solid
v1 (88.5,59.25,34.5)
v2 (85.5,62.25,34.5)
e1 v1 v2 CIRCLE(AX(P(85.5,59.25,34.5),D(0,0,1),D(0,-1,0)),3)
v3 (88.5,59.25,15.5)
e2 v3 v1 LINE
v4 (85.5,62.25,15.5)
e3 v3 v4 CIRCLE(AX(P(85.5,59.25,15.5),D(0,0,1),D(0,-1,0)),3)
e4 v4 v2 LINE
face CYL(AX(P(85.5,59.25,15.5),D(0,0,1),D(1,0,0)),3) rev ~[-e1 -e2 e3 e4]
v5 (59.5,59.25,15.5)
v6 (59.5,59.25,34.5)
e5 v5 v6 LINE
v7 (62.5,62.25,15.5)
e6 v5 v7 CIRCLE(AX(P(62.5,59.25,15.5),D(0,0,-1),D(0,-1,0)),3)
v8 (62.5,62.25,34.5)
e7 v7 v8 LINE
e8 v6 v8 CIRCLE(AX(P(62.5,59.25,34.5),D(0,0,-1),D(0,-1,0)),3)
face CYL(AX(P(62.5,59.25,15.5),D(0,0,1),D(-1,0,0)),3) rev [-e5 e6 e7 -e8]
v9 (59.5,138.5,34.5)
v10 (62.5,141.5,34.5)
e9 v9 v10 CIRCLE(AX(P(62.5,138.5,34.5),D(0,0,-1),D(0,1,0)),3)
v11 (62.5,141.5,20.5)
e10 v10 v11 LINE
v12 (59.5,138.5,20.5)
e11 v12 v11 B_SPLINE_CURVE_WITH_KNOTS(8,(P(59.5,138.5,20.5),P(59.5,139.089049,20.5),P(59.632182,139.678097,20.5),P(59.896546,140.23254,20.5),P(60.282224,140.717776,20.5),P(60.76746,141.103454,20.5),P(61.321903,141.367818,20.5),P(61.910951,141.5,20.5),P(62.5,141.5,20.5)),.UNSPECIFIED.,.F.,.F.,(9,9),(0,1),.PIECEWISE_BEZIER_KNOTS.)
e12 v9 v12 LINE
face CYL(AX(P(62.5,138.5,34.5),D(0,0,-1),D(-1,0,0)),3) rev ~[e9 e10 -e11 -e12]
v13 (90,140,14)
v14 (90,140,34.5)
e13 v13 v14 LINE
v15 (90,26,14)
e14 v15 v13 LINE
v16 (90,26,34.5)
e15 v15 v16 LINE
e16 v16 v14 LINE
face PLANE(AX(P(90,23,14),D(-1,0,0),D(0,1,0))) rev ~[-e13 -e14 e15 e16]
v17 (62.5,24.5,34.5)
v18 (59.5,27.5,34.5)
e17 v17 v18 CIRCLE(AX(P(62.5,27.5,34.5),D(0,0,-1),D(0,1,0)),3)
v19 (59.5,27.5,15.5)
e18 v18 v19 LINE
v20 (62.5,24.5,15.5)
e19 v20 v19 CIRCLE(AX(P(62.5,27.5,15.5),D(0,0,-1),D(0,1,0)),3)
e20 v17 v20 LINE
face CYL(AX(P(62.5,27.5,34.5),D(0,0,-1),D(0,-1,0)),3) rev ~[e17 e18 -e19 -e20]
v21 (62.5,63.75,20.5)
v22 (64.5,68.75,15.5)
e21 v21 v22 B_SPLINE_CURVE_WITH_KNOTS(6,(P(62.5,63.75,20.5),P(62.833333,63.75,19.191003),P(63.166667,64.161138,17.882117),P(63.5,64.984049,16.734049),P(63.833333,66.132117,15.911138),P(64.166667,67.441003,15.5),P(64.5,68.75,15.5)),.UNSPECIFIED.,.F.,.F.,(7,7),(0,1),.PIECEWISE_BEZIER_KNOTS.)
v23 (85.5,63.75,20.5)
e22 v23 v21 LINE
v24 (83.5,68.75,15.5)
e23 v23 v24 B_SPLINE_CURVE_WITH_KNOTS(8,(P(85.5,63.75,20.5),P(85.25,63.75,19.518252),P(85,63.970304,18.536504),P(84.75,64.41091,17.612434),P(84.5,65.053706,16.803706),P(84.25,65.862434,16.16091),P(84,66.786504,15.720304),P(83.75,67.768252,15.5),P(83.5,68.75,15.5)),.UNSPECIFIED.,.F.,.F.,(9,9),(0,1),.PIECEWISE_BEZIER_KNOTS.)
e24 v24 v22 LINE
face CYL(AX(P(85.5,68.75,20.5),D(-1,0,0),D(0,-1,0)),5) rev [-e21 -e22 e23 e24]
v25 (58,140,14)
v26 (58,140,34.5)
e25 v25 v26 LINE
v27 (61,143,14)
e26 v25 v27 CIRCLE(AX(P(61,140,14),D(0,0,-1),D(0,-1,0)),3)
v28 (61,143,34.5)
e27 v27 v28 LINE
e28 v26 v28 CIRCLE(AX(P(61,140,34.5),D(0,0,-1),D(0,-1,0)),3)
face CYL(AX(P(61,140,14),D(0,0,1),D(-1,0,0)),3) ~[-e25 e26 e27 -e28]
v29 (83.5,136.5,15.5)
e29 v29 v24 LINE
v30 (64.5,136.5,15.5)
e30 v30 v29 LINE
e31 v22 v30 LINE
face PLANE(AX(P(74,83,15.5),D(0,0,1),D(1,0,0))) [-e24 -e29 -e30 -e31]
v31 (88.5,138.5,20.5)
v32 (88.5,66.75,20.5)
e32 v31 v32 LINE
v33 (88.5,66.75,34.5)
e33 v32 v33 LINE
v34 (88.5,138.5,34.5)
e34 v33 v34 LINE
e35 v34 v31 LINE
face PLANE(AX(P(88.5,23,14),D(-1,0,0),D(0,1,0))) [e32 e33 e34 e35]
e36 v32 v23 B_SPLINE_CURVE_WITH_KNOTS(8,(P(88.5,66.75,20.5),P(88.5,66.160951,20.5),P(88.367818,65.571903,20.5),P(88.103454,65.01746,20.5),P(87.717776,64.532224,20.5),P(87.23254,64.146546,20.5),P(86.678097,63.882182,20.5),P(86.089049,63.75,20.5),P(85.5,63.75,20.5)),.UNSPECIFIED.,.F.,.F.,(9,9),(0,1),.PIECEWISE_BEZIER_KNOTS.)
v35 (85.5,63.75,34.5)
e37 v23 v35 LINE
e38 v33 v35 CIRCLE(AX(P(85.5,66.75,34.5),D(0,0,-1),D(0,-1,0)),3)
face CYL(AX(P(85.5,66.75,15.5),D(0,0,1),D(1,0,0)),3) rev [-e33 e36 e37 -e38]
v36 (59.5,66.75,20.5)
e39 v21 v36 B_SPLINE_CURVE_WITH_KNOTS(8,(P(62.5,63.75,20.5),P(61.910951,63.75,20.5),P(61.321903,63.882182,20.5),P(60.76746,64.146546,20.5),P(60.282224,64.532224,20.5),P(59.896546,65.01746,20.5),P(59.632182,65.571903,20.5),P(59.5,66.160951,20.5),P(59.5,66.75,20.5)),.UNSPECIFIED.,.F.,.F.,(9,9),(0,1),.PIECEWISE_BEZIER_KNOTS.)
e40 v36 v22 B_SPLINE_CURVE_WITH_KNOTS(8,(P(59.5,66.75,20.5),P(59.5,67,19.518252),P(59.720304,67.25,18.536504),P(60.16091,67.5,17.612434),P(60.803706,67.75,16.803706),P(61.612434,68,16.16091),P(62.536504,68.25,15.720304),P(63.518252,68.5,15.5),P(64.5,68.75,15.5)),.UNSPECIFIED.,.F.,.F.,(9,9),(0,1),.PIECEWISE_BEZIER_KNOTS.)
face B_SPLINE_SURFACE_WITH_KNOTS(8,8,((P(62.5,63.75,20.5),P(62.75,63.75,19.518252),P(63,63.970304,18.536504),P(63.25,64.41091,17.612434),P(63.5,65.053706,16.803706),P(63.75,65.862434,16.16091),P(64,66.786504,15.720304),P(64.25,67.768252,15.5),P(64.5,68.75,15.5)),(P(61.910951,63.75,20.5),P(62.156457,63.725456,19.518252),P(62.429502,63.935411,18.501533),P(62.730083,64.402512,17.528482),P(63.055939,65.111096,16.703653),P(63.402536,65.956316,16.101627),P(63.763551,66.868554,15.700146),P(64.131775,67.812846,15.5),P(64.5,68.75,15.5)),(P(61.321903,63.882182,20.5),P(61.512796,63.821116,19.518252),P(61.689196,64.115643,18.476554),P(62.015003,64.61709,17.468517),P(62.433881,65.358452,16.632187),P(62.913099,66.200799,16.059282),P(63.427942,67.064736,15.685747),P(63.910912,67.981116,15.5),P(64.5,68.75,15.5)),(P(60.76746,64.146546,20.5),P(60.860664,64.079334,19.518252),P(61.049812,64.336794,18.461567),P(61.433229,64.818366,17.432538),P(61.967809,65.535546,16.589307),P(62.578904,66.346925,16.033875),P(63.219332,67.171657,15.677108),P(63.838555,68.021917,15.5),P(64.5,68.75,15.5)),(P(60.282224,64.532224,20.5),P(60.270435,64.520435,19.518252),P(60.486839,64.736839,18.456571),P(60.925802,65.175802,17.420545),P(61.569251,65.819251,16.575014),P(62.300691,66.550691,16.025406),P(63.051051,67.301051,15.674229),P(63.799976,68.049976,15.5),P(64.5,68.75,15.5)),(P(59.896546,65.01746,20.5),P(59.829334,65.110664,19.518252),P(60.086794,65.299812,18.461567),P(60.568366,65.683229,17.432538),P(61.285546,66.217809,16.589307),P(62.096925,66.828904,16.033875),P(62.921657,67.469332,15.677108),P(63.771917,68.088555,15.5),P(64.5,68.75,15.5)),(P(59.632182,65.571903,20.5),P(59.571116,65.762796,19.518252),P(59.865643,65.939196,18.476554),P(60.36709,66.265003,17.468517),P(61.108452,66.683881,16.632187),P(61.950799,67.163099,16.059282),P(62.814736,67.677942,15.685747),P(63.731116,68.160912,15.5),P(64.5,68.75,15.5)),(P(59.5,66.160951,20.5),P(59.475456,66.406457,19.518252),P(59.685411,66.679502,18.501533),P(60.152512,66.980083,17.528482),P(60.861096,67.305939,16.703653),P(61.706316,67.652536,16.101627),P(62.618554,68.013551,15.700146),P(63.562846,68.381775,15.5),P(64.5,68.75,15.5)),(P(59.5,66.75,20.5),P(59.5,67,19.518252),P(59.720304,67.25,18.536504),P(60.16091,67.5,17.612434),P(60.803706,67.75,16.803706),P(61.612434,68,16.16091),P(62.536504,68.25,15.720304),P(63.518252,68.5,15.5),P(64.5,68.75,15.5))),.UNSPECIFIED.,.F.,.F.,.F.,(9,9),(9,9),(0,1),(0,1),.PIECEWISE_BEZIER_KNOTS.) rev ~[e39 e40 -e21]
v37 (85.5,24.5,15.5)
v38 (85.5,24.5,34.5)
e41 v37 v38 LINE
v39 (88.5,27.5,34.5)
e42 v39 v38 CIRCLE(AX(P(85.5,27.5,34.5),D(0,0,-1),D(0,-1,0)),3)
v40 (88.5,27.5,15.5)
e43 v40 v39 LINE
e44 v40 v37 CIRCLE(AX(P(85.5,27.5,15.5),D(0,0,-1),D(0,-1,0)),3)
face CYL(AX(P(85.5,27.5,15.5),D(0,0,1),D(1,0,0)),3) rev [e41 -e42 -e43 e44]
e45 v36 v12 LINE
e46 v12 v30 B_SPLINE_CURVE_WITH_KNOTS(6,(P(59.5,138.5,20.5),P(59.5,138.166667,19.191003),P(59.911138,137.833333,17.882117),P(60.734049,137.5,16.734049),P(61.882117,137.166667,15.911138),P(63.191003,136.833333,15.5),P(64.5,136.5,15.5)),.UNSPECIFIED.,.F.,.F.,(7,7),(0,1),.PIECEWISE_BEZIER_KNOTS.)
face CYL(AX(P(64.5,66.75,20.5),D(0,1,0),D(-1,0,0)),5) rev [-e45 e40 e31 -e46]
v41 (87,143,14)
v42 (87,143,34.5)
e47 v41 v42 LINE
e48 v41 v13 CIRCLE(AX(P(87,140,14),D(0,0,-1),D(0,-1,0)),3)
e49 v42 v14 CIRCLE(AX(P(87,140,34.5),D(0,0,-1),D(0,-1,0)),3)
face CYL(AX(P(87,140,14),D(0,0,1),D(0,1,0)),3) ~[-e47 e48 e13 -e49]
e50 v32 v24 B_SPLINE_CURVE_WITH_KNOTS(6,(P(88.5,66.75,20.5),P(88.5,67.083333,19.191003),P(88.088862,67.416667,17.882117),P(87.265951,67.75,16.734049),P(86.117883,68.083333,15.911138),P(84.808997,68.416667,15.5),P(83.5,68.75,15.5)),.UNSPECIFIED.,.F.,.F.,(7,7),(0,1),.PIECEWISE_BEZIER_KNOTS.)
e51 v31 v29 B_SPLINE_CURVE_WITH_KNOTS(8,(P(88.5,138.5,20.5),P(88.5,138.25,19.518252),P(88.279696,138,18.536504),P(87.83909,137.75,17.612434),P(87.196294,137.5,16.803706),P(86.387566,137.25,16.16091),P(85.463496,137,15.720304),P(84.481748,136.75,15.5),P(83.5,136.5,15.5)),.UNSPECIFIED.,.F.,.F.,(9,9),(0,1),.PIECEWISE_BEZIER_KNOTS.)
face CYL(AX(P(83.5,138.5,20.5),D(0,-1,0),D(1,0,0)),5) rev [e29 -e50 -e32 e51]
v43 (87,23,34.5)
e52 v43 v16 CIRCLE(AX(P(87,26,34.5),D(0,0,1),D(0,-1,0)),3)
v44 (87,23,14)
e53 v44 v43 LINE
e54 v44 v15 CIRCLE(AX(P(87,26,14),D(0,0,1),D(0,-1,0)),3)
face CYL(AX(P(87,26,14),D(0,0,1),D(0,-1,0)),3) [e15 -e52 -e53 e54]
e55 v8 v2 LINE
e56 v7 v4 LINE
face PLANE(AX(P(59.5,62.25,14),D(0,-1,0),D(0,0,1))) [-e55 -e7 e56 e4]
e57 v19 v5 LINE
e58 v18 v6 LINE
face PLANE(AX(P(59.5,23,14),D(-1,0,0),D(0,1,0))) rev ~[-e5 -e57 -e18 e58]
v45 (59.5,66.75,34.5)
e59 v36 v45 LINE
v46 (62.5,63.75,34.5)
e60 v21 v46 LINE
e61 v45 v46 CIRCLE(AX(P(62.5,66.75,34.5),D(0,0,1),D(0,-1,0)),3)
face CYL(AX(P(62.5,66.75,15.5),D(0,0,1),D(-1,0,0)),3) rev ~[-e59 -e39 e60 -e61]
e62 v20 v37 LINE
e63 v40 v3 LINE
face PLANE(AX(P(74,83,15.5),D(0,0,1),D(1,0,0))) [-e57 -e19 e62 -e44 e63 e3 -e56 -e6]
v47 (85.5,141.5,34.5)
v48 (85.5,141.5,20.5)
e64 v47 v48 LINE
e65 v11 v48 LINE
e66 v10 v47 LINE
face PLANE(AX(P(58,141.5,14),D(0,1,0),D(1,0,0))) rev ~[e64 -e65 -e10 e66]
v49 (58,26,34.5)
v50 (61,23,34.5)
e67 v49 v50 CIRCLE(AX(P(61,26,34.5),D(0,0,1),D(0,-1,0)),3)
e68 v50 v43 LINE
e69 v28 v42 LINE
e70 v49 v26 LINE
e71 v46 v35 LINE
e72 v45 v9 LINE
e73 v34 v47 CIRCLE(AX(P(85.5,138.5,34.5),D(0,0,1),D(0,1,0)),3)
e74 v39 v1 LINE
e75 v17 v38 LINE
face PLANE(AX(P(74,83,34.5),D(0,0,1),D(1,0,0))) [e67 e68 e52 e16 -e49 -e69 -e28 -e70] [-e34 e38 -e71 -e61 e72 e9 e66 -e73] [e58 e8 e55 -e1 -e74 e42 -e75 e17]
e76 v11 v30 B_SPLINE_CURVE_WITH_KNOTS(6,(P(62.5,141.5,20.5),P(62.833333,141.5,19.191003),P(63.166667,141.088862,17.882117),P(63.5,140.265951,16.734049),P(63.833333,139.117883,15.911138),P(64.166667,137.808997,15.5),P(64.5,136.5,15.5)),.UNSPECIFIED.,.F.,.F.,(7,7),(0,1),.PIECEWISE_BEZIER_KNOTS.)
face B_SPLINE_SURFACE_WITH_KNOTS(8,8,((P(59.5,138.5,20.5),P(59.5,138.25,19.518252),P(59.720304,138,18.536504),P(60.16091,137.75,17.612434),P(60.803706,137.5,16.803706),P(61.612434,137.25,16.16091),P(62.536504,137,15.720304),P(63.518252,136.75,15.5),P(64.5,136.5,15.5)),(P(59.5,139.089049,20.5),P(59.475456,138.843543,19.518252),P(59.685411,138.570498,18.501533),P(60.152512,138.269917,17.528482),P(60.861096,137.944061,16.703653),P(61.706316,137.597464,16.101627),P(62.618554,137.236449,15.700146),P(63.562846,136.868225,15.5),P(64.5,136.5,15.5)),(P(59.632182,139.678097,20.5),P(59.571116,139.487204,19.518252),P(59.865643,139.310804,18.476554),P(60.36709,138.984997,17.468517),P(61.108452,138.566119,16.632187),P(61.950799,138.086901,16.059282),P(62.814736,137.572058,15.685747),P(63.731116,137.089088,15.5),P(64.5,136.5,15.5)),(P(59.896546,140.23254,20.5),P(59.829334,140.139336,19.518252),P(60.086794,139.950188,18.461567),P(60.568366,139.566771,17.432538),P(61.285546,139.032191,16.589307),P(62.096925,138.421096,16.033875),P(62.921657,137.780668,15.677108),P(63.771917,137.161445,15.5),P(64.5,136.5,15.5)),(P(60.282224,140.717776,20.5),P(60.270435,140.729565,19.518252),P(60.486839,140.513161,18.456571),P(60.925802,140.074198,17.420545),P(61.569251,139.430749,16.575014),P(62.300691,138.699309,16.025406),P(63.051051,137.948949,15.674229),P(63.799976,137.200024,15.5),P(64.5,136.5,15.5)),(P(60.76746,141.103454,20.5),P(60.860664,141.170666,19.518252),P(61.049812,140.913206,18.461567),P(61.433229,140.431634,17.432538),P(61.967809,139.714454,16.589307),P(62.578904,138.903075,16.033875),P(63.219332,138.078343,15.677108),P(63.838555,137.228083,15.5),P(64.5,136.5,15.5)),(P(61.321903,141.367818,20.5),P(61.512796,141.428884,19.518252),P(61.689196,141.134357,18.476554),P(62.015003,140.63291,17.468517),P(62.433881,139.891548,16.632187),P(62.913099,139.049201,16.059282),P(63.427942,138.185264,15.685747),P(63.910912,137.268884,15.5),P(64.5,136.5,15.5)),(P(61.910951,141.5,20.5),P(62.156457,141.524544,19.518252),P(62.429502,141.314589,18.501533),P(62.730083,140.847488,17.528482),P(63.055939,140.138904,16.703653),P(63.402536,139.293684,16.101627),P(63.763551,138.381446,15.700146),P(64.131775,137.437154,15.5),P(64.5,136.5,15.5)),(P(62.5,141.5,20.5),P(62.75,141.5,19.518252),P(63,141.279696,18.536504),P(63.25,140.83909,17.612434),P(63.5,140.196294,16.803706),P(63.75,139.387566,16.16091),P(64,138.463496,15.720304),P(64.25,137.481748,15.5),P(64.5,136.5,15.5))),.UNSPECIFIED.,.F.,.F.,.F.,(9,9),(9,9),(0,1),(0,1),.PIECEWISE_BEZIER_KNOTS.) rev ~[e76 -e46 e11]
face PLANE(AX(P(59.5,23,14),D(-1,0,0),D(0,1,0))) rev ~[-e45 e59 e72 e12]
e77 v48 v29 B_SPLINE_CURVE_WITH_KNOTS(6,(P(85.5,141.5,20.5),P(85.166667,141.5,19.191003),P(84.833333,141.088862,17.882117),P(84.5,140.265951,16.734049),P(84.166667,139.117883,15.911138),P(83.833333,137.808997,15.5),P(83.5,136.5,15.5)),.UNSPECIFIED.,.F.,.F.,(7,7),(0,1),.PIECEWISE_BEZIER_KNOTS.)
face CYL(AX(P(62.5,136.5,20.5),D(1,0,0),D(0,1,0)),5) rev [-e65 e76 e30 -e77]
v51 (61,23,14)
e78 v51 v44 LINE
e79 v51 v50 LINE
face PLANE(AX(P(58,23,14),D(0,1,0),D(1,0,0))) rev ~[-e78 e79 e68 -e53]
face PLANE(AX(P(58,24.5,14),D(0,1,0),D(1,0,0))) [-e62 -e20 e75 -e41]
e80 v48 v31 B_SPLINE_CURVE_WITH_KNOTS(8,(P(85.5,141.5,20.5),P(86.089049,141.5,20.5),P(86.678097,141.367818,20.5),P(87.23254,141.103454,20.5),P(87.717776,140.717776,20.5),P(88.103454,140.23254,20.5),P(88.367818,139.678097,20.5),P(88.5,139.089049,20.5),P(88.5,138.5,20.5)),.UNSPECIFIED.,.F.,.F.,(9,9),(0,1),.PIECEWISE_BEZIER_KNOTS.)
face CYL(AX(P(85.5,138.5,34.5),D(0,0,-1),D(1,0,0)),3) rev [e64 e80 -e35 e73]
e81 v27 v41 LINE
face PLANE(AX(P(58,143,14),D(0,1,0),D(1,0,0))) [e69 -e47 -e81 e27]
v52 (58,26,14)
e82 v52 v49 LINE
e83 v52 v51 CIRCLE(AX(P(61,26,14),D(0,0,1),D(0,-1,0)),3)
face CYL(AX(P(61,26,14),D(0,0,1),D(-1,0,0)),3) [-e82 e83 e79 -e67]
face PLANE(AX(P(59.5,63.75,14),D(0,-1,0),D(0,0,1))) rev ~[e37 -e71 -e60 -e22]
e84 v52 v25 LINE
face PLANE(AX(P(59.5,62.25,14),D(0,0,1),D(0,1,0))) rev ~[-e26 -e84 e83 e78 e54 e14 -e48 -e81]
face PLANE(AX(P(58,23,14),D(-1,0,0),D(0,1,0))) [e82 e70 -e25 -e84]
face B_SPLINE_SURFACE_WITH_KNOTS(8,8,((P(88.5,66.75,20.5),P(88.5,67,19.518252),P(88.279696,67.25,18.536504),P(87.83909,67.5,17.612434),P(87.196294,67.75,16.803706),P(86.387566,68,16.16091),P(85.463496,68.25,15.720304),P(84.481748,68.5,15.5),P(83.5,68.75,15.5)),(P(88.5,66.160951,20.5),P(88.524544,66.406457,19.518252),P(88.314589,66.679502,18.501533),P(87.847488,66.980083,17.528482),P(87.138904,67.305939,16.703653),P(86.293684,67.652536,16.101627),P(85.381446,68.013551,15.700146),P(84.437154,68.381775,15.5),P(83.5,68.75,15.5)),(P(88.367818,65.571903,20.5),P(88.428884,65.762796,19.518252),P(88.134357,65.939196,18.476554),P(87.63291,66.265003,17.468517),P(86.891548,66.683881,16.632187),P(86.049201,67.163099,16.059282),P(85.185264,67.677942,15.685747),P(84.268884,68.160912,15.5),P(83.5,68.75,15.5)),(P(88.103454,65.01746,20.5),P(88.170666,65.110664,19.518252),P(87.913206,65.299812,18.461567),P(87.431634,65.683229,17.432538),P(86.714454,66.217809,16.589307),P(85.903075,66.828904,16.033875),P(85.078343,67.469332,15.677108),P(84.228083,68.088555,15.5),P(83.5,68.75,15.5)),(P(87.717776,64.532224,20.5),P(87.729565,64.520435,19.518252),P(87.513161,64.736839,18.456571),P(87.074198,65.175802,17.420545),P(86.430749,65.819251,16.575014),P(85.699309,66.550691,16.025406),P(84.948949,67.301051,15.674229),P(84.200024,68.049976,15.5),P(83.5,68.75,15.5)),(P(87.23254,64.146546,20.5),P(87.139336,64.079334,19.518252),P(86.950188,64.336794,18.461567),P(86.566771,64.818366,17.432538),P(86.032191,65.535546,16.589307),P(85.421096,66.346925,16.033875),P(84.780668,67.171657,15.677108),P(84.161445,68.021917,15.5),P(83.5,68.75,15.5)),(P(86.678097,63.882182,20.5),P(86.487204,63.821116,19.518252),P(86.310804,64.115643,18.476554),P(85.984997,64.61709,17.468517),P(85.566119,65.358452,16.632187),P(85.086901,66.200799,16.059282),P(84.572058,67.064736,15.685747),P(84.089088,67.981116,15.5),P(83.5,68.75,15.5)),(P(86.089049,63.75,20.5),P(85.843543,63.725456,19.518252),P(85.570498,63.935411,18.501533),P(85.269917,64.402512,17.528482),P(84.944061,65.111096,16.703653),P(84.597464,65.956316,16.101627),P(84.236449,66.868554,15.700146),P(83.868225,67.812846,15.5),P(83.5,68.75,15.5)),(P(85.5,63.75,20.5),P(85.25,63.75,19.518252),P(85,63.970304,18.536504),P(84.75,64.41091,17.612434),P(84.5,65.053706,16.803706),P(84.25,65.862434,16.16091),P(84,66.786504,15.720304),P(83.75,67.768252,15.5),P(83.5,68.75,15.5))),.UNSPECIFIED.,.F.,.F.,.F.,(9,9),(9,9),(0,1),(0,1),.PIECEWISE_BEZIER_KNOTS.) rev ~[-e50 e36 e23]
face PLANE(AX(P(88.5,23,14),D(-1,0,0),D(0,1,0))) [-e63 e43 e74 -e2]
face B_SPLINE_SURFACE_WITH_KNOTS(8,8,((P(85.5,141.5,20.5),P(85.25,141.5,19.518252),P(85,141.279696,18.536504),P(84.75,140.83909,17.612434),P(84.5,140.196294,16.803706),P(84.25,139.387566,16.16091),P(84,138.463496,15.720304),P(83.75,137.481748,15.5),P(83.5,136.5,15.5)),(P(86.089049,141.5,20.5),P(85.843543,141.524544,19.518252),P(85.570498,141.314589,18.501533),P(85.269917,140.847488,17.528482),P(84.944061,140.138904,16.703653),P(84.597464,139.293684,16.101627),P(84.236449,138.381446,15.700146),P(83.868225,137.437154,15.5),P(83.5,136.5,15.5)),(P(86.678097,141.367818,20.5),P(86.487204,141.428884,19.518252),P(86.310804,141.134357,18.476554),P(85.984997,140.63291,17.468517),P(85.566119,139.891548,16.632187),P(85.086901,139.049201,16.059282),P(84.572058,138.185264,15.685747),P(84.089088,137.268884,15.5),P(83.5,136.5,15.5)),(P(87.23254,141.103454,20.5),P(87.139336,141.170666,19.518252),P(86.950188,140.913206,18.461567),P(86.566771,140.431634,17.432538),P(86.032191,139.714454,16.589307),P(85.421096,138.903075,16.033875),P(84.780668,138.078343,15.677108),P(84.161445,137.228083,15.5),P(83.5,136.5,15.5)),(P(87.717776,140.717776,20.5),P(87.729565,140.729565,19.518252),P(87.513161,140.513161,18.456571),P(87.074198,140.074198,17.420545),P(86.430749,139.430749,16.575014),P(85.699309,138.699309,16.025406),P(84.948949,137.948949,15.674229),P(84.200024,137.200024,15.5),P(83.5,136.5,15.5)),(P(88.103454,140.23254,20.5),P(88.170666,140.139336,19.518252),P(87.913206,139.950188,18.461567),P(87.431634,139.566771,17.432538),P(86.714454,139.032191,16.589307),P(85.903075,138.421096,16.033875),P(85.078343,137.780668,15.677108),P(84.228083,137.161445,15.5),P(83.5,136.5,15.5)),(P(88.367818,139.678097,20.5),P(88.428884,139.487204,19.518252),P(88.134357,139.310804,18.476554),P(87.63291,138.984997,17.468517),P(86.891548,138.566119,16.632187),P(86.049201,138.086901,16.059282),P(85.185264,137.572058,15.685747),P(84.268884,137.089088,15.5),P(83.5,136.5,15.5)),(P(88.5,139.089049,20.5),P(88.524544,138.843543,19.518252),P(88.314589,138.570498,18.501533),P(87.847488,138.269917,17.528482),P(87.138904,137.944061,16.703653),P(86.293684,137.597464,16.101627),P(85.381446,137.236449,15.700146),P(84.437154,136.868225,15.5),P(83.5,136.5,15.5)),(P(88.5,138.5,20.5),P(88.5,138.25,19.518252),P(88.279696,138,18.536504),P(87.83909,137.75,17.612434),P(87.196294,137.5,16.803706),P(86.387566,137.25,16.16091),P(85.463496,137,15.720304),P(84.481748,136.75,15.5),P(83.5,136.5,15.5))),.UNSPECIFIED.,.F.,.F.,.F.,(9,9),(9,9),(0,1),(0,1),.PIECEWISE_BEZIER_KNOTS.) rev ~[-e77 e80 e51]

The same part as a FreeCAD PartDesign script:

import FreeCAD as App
import Part
import Sketcher
from FreeCAD import Vector
Q = App.Units.Quantity


def edges_at(feature, points):
    """Names of the edges that pass closest to the given points."""
    edges = feature.Shape.Edges
    near = lambda p: min(range(len(edges)), key=lambda i: edges[i].distToShape(Part.Vertex(*p))[0])
    return sorted({f"Edge{near(p) + 1}" for p in points})


def faces_at(feature, points):
    """Names of the faces that lie closest to the given points."""
    faces = feature.Shape.Faces
    near = lambda p: min(range(len(faces)), key=lambda i: faces[i].distToShape(Part.Vertex(*p))[0])
    return sorted({f"Face{near(p) + 1}" for p in points})


def add_polygon(sketch, points):
    """Adds a closed chain of lines whose ends are joined by coincident constraints."""
    first, n = sketch.GeometryCount, len(points)
    for a, b in zip(points, points[1:] + points[:1]):
        sketch.addGeometry(Part.LineSegment(App.Vector(*a, 0), App.Vector(*b, 0)), False)
    for i in range(n):
        sketch.addConstraint(Sketcher.Constraint("Coincident", first + i, 2, first + (i + 1) % n, 1))

doc = App.newDocument("Part")
body = doc.addObject("PartDesign::Body", "Body")

# Sketch on XY plane
sketch1 = doc.addObject("Sketcher::SketchObject", "Sketch")
body.addObject(sketch1)
sketch1.AttachmentSupport = (doc.XY_Plane, [""])
sketch1.MapMode = "FlatFace"
add_polygon(sketch1, [(-16, 60), (-16, -60), (16, -60), (16, 60)])  # lines 0-3
sketch1.addConstraint([
    Sketcher.Constraint("Vertical", 0),
    Sketcher.Constraint("Horizontal", 1),
    Sketcher.Constraint("Vertical", 2),
    Sketcher.Constraint("Horizontal", 3),
    Sketcher.Constraint("Symmetric", 0, 2, 2, 2, -1, 1),
    Sketcher.Constraint("DistanceX", 1, 1, 1, 2, Q("32 mm")),
    Sketcher.Constraint("DistanceY", 0, 2, 0, 1, Q("120 mm")),
])
pad1 = doc.addObject("PartDesign::Pad", "Pad")
body.addObject(pad1)
pad1.Profile = sketch1
pad1.Length = 20.5
doc.recompute()

thickness = doc.addObject("PartDesign::Thickness", "Thickness")
body.addObject(thickness)
thickness.Base = (pad1, faces_at(pad1, [(0, 0, 20.5)]))
thickness.Value = 1.5
thickness.Reversed = True
thickness.Join = "Arc"

# Sketch on YZ plane
sketch2 = doc.addObject("Sketcher::SketchObject", "Sketch001")
body.addObject(sketch2)
sketch2.AttachmentSupport = (doc.YZ_Plane, [""])
sketch2.MapMode = "FlatFace"
sketch2.AttachmentOffset = App.Placement(Vector(0, 0, -14.5), App.Rotation())
add_polygon(sketch2, [(-20.75, 20.5), (-20.75, 0), (-19.25, 0), (-19.25, 20.5)])  # lines 0-3
sketch2.addConstraint([
    Sketcher.Constraint("Vertical", 0),
    Sketcher.Constraint("Horizontal", 1),
    Sketcher.Constraint("Vertical", 2),
    Sketcher.Constraint("Horizontal", 3),
    Sketcher.Constraint("PointOnObject", 0, 2, -1),
    Sketcher.Constraint("DistanceX", 1, 1, 1, 2, Q("1.5 mm")),
    Sketcher.Constraint("DistanceY", 0, 2, 0, 1, Q("20.5 mm")),
    Sketcher.Constraint("DistanceX", 0, 2, -1, 1, Q("20.75 mm")),
])
pad2 = doc.addObject("PartDesign::Pad", "Pad001")
body.addObject(pad2)
pad2.Profile = sketch2
pad2.Length = 29
doc.recompute()

fillet = doc.addObject("PartDesign::Fillet", "Fillet")
body.addObject(fillet)
fillet.Base = (pad2, edges_at(pad2, [
    (-14.5, 58.5, 11),
    (14.5, 58.5, 11),
    (16, 60, 10.25),
    (-16, 60, 10.25),
    (-14.5, -58.5, 11),
    (-16, -60, 10.25),
    (-14.5, -20.75, 11),
    (-14.5, -19.25, 11),
    (14.5, -19.25, 11),
    (14.5, -20.75, 11),
    (14.5, -58.5, 11),
    (16, -60, 10.25),
]))
fillet.Radius = 3
doc.recompute()

fillet2 = doc.addObject("PartDesign::Fillet", "Fillet001")
body.addObject(fillet2)
fillet2.Base = (fillet, edges_at(fillet, [
    (0, 58.5, 1.5),
    (-13.621, 57.621, 1.5),
    (13.621, 57.621, 1.5),
    (-14.5, 19.625, 1.5),
    (14.5, 19.625, 1.5),
    (-13.621, -18.371, 1.5),
    (13.621, -18.371, 1.5),
    (0, -19.25, 1.5),
]))
fillet2.Radius = 5
body2 = doc.addObject("PartDesign::Body", "Body001")
doc.recompute()

body.Placement = App.Placement(Vector(-22, 83, 14), App.Rotation(Vector(0, 0, 1), 0))
boolean = doc.addObject("PartDesign::Boolean", "Boolean")
body2.addObject(boolean)
boolean.Type = "Fuse"
boolean.addObjects([body])
body3 = doc.addObject("PartDesign::Body", "Body002")
doc.recompute()

body2.Placement = App.Placement(Vector(96, 0, 0), App.Rotation(Vector(0, 0, 1), 0))
boolean2 = doc.addObject("PartDesign::Boolean", "Boolean001")
body3.addObject(boolean2)
boolean2.Type = "Fuse"
boolean2.addObjects([body2])

doc.recompute()
